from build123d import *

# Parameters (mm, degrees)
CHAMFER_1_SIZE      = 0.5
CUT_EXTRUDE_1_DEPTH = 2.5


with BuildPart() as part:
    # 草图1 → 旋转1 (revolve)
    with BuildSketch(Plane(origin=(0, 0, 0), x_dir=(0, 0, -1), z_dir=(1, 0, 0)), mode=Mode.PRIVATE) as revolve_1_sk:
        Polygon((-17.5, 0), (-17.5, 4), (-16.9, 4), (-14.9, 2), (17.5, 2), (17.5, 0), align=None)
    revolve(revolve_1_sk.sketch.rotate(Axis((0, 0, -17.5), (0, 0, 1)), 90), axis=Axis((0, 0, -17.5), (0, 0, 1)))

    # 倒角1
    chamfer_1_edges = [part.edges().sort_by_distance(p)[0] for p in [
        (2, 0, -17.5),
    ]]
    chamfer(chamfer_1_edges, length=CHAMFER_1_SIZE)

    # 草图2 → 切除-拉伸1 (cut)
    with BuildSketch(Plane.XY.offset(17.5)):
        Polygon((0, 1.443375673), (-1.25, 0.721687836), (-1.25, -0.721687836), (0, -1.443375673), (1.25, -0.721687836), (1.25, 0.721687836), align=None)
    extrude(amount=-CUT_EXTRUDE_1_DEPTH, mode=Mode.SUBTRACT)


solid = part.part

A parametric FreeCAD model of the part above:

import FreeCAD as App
import Part
import Sketcher

V = App.Vector
Q = App.Units.Quantity


def edges_at(feature, points):
    """Names of the edges that pass closest to the given points."""
    edges = feature.Shape.Edges
    near = lambda p: min(range(len(edges)), key=lambda i: edges[i].distToShape(Part.Vertex(*p))[0])
    return sorted({f"Edge{near(p) + 1}" for p in points})

doc = App.newDocument("Part")
body = doc.addObject("PartDesign::Body", "Body")

# Sketch on YZ plane
sketch1 = doc.addObject("Sketcher::SketchObject", "Sketch")
body.addObject(sketch1)
sketch1.AttachmentSupport = (doc.YZ_Plane, [""])
sketch1.MapMode = "FlatFace"
sketch1.addGeometry([
    Part.LineSegment(V(4, 17.5, 0), V(0, 17.5, 0)),  # 0
    Part.LineSegment(V(0, 17.5, 0), V(0, -17.5, 0)),  # 1
    Part.LineSegment(V(0, -17.5, 0), V(2, -17.5, 0)),  # 2
    Part.LineSegment(V(2, -17.5, 0), V(2, 14.9, 0)),  # 3
    Part.LineSegment(V(2, 14.9, 0), V(4, 16.9, 0)),  # 4
    Part.LineSegment(V(4, 16.9, 0), V(4, 17.5, 0)),  # 5
], False)
sketch1.addConstraint([
    Sketcher.Constraint("Coincident", 0, 2, 1, 1),
    Sketcher.Constraint("Coincident", 1, 2, 2, 1),
    Sketcher.Constraint("Coincident", 2, 2, 3, 1),
    Sketcher.Constraint("Coincident", 3, 2, 4, 1),
    Sketcher.Constraint("Coincident", 4, 2, 5, 1),
    Sketcher.Constraint("Coincident", 5, 2, 0, 1),
    Sketcher.Constraint("Horizontal", 0),
    Sketcher.Constraint("Vertical", 1),
    Sketcher.Constraint("Horizontal", 2),
    Sketcher.Constraint("Vertical", 3),
    Sketcher.Constraint("Vertical", 5),
    Sketcher.Constraint("Symmetric", 0, 2, 1, 2, -1, 1),
    Sketcher.Constraint("DistanceX", 0, 2, 0, 1, Q("4 mm")),
    Sketcher.Constraint("DistanceX", 2, 1, 2, 2, Q("2 mm")),
    Sketcher.Constraint("DistanceY", 1, 2, 1, 1, Q("35 mm")),
    Sketcher.Constraint("Angle", 4, Q("45 deg")),
    Sketcher.Constraint("DistanceY", 3, 1, 3, 2, Q("32.4 mm")),
])
revolution = doc.addObject("PartDesign::Revolution", "Revolution")
body.addObject(revolution)
revolution.Profile = sketch1
revolution.ReferenceAxis = (sketch1, ["V_Axis"])
revolution.Angle = 360
doc.recompute()

chamfer = doc.addObject("PartDesign::Chamfer", "Chamfer")
body.addObject(chamfer)
chamfer.Base = (revolution, edges_at(revolution, [(2, 0, -17.5)]))
chamfer.Size = 0.5

# Sketch on XY plane
sketch2 = doc.addObject("Sketcher::SketchObject", "Sketch001")
body.addObject(sketch2)
sketch2.AttachmentSupport = (doc.XY_Plane, [""])
sketch2.MapMode = "FlatFace"
sketch2.AttachmentOffset = App.Placement(V(0, 0, 17.5), App.Rotation())
sketch2.addGeometry([
    Part.LineSegment(V(0, 1.4, 0), V(-1.2, 0.7, 0)),  # 0
    Part.LineSegment(V(-1.2, 0.7, 0), V(-1.2, -0.7, 0)),  # 1
    Part.LineSegment(V(-1.2, -0.7, 0), V(0, -1.4, 0)),  # 2
    Part.LineSegment(V(0, -1.4, 0), V(1.2, -0.7, 0)),  # 3
    Part.LineSegment(V(1.2, -0.7, 0), V(1.2, 0.7, 0)),  # 4
    Part.LineSegment(V(1.2, 0.7, 0), V(0, 1.4, 0)),  # 5
], False)
sketch2.addConstraint([
    Sketcher.Constraint("Coincident", 0, 2, 1, 1),
    Sketcher.Constraint("Coincident", 1, 2, 2, 1),
    Sketcher.Constraint("Coincident", 2, 2, 3, 1),
    Sketcher.Constraint("Coincident", 3, 2, 4, 1),
    Sketcher.Constraint("Coincident", 4, 2, 5, 1),
    Sketcher.Constraint("Coincident", 5, 2, 0, 1),
    Sketcher.Constraint("Vertical", 1),
    Sketcher.Constraint("Vertical", 4),
    Sketcher.Constraint("Symmetric", 0, 2, 3, 2, -1, 1),
    Sketcher.Constraint("Symmetric", 2, 2, 5, 2, -1, 1),
    Sketcher.Constraint("PointOnObject", 2, 2, -2),
    Sketcher.Constraint("Parallel", 2, 5),
    Sketcher.Constraint("Horizontal", 1, 2, 3, 2),
    Sketcher.Constraint("Angle", 0, Q("-150 deg")),
    Sketcher.Constraint("DistanceX", 1, 2, 3, 2, Q("2.5 mm")),
    Sketcher.Constraint("DistanceY", 1, 2, 1, 1, Q("1.443376 mm")),
])
pocket1 = doc.addObject("PartDesign::Pocket", "Pocket")
body.addObject(pocket1)
pocket1.Profile = sketch2
pocket1.Length = 2.5

doc.recompute()
